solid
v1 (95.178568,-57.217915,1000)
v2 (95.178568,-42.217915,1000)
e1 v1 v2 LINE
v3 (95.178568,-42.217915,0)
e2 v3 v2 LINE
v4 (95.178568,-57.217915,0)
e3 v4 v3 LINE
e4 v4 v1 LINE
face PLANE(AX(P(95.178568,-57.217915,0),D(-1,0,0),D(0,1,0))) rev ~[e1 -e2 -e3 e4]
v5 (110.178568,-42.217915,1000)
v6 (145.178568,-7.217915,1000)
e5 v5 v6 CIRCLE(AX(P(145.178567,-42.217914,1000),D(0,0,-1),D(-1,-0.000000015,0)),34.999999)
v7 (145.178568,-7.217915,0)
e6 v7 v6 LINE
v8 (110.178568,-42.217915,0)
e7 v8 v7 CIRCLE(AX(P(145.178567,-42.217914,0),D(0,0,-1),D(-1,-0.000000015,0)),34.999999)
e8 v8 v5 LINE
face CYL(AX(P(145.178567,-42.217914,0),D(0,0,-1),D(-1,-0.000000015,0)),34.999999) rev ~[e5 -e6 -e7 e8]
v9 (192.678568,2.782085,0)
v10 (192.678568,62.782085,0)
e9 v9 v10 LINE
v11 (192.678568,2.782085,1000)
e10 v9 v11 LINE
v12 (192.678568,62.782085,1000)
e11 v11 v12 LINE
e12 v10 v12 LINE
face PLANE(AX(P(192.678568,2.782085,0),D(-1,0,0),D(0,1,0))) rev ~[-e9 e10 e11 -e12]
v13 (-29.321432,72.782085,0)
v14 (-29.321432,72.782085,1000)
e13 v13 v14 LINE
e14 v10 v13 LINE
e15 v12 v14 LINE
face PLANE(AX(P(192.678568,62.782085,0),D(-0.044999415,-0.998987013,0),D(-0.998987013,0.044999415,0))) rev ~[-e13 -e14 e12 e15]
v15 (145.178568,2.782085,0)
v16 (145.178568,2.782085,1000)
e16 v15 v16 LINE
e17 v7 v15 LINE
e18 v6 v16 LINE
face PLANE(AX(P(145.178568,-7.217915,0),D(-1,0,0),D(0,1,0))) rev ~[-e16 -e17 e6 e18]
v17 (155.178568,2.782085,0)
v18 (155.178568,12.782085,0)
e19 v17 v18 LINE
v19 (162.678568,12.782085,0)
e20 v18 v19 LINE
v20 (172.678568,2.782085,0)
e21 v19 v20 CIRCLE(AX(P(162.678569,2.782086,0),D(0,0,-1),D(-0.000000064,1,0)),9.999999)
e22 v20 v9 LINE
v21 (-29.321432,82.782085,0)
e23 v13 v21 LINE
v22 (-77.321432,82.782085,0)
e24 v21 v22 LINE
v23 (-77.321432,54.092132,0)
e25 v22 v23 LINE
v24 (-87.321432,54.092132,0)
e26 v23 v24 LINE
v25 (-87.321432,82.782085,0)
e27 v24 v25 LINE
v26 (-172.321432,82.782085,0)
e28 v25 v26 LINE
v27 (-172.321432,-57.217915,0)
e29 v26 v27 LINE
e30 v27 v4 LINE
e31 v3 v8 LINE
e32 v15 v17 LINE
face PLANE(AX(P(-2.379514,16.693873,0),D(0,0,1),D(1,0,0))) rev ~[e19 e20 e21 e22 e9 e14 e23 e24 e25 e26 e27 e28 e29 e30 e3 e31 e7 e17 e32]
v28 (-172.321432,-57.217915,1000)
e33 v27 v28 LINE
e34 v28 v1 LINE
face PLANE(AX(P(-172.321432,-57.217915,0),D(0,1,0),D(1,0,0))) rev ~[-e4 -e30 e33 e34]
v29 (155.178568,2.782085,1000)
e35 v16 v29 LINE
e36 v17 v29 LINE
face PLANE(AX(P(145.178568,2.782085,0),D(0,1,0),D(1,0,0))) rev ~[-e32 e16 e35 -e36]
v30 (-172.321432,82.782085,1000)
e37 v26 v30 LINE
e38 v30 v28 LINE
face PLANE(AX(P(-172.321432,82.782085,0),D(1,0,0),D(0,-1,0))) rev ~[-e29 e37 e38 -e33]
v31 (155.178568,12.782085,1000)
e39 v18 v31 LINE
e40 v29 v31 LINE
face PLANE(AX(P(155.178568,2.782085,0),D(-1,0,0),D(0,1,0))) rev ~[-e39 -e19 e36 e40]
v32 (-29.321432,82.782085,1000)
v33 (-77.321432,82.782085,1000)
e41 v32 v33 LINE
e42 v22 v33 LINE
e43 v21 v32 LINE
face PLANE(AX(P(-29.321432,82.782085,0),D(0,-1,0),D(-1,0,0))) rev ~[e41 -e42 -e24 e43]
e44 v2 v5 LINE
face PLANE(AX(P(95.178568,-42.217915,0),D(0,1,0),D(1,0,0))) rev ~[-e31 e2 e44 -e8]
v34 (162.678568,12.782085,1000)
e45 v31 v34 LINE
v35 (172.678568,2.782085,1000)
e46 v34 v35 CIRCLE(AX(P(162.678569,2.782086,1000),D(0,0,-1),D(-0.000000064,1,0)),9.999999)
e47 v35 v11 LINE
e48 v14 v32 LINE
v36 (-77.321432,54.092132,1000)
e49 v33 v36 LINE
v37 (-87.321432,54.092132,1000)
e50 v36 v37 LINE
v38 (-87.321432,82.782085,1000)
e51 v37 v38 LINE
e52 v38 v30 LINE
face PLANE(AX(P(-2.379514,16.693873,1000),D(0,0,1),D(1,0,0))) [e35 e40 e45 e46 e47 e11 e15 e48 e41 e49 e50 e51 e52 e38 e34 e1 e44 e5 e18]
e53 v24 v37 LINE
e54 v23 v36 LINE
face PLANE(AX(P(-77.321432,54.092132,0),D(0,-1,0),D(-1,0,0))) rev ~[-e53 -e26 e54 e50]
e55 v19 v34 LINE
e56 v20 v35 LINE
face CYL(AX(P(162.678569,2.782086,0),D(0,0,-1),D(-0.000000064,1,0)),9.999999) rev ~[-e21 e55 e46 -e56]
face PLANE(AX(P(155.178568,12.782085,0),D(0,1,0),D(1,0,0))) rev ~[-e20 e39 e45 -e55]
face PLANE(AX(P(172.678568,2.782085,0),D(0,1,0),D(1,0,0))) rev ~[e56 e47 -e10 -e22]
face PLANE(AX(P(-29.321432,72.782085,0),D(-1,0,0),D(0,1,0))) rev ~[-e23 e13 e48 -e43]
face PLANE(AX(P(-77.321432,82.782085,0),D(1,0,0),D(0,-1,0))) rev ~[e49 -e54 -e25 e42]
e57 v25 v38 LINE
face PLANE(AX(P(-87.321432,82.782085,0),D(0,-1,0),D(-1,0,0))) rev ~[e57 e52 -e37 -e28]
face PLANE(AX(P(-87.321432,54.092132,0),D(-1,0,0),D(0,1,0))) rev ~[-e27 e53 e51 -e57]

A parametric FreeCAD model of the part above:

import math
import FreeCAD as App
import Part
import Sketcher
from FreeCAD import Vector
Q = App.Units.Quantity

doc = App.newDocument("Part")
params = doc.addObject("Spreadsheet::Sheet", "Params")
for row, (alias, value) in enumerate([
    ("sketch1_radius", "34.999999 mm"),
    ("sketch1_radius2", "9.999999 mm"),
    ("sketch1_width", "85 mm"),
    ("sketch1_width2", "15 mm"),
    ("sketch1_width3", "20 mm"),
    ("pad1_length", "1000 mm"),
], start=1):
    params.set(f"A{row}", alias)
    params.set(f"B{row}", "=" + value)
    params.setAlias(f"B{row}", alias)

body = doc.addObject("PartDesign::Body", "Body")

# Sketch on XY plane
sketch1 = doc.addObject("Sketcher::SketchObject", "Sketch")
body.addObject(sketch1)
sketch1.AttachmentSupport = (doc.XY_Plane, [""])
sketch1.MapMode = "FlatFace"
sketch1.addGeometry([
    Part.LineSegment(Vector(-87.321432, 82.782085, 0), Vector(-172.321432, 82.782085, 0)),  # 0
    Part.LineSegment(Vector(-172.321432, 82.782085, 0), Vector(-172.321432, -57.217915, 0)),  # 1
    Part.LineSegment(Vector(-172.321432, -57.217915, 0), Vector(95.178568, -57.217915, 0)),  # 2
    Part.LineSegment(Vector(95.178568, -57.217915, 0), Vector(95.178568, -42.217915, 0)),  # 3
    Part.LineSegment(Vector(95.178568, -42.217915, 0), Vector(110.178568, -42.217915, 0)),  # 4
    Part.ArcOfCircle(Part.Circle(Vector(145.178567, -42.217914, 0), Vector(0, 0, 1), 34.999999), math.radians(89.999999), math.radians(180.000001)),  # 5
    Part.LineSegment(Vector(145.178568, -7.217915, 0), Vector(145.178568, 2.782085, 0)),  # 6
    Part.LineSegment(Vector(145.178568, 2.782085, 0), Vector(155.178568, 2.782085, 0)),  # 7
    Part.LineSegment(Vector(155.178568, 2.782085, 0), Vector(155.178568, 12.782085, 0)),  # 8
    Part.LineSegment(Vector(155.178568, 12.782085, 0), Vector(162.678568, 12.782085, 0)),  # 9
    Part.ArcOfCircle(Part.Circle(Vector(162.678569, 2.782086, 0), Vector(0, 0, 1), 9.999999), math.radians(-0.000004), math.radians(90.000004)),  # 10
    Part.LineSegment(Vector(172.678568, 2.782085, 0), Vector(192.678568, 2.782085, 0)),  # 11
    Part.LineSegment(Vector(192.678568, 2.782085, 0), Vector(192.678568, 62.782085, 0)),  # 12
    Part.LineSegment(Vector(192.678568, 62.782085, 0), Vector(-29.321432, 72.782085, 0)),  # 13
    Part.LineSegment(Vector(-29.321432, 72.782085, 0), Vector(-29.321432, 82.782085, 0)),  # 14
    Part.LineSegment(Vector(-29.321432, 82.782085, 0), Vector(-77.321432, 82.782085, 0)),  # 15
    Part.LineSegment(Vector(-77.321432, 82.782085, 0), Vector(-77.321432, 54.092132, 0)),  # 16
    Part.LineSegment(Vector(-77.321432, 54.092132, 0), Vector(-87.321432, 54.092132, 0)),  # 17
    Part.LineSegment(Vector(-87.321432, 54.092132, 0), Vector(-87.321432, 82.782085, 0)),  # 18
], False)
sketch1.addConstraint([
    Sketcher.Constraint("Coincident", 0, 2, 1, 1),
    Sketcher.Constraint("Coincident", 1, 2, 2, 1),
    Sketcher.Constraint("Coincident", 2, 2, 3, 1),
    Sketcher.Constraint("Coincident", 3, 2, 4, 1),
    Sketcher.Constraint("Coincident", 4, 2, 5, 2),
    Sketcher.Constraint("Coincident", 5, 1, 6, 1),
    Sketcher.Constraint("Coincident", 6, 2, 7, 1),
    Sketcher.Constraint("Coincident", 7, 2, 8, 1),
    Sketcher.Constraint("Coincident", 8, 2, 9, 1),
    Sketcher.Constraint("Tangent", 9, 2, 10, 2),
    Sketcher.Constraint("Coincident", 10, 1, 11, 1),
    Sketcher.Constraint("Coincident", 11, 2, 12, 1),
    Sketcher.Constraint("Coincident", 12, 2, 13, 1),
    Sketcher.Constraint("Coincident", 13, 2, 14, 1),
    Sketcher.Constraint("Coincident", 14, 2, 15, 1),
    Sketcher.Constraint("Coincident", 15, 2, 16, 1),
    Sketcher.Constraint("Coincident", 16, 2, 17, 1),
    Sketcher.Constraint("Coincident", 17, 2, 18, 1),
    Sketcher.Constraint("Coincident", 18, 2, 0, 1),
    Sketcher.Constraint("Horizontal", 0),
    Sketcher.Constraint("Vertical", 1),
    Sketcher.Constraint("Horizontal", 2),
    Sketcher.Constraint("Vertical", 3),
    Sketcher.Constraint("Horizontal", 4),
    Sketcher.Constraint("Vertical", 6),
    Sketcher.Constraint("Horizontal", 7),
    Sketcher.Constraint("Vertical", 8),
    Sketcher.Constraint("Horizontal", 9),
    Sketcher.Constraint("Horizontal", 11),
    Sketcher.Constraint("Vertical", 12),
    Sketcher.Constraint("Vertical", 14),
    Sketcher.Constraint("Horizontal", 15),
    Sketcher.Constraint("Vertical", 16),
    Sketcher.Constraint("Horizontal", 17),
    Sketcher.Constraint("Vertical", 18),
    Sketcher.Constraint("Horizontal", 5, 3, 3, 2),
    Sketcher.Constraint("Horizontal", 10, 3, 6, 2),
    Sketcher.Constraint("Horizontal", 7, 2, 10, 1),
    Sketcher.Constraint("Horizontal", 0, 2, 14, 2),
    Sketcher.Constraint("Equal", 7, 17),
    Sketcher.Constraint("Equal", 4, 3),
    Sketcher.Constraint("Equal", 17, 6),
    Sketcher.Constraint("Equal", 6, 8),
    Sketcher.Constraint("Equal", 8, 14),
    Sketcher.Constraint("Radius", 5, Q("34.999999 mm")),
    Sketcher.Constraint("Radius", 10, Q("9.999999 mm")),
    Sketcher.Constraint("DistanceX", 0, 2, 0, 1, Q("85 mm")),
    Sketcher.Constraint("DistanceX", 4, 1, 4, 2, Q("15 mm")),
    Sketcher.Constraint("DistanceX", 11, 1, 11, 2, Q("20 mm")),
    Sketcher.Constraint("DistanceX", 15, 2, 15, 1, Q("48 mm")),
    Sketcher.Constraint("DistanceY", 1, 2, 1, 1, Q("140 mm")),
    Sketcher.Constraint("DistanceY", 12, 1, 12, 2, Q("60 mm")),
    Sketcher.Constraint("DistanceX", 2, 1, 2, 2, Q("267.5 mm")),
    Sketcher.Constraint("DistanceX", 9, 1, 9, 2, Q("7.5 mm")),
    Sketcher.Constraint("DistanceX", 0, 2, 10, 3, Q("335.000001 mm")),
    Sketcher.Constraint("DistanceY", 16, 2, 16, 1, Q("28.689953 mm")),
    Sketcher.Constraint("DistanceX", -1, 1, 10, 3, Q("162.678569 mm")),
    Sketcher.Constraint("DistanceY", 5, 3, -1, 1, Q("42.217914 mm")),
])
sketch1.setExpression("Constraints[44]", "Params.sketch1_radius")
sketch1.setExpression("Constraints[45]", "Params.sketch1_radius2")
sketch1.setExpression("Constraints[46]", "Params.sketch1_width")
sketch1.setExpression("Constraints[47]", "Params.sketch1_width2")
sketch1.setExpression("Constraints[48]", "Params.sketch1_width3")
pad1 = doc.addObject("PartDesign::Pad", "Pad")
body.addObject(pad1)
pad1.Profile = sketch1
pad1.setExpression("Length", "Params.pad1_length")

doc.recompute()
